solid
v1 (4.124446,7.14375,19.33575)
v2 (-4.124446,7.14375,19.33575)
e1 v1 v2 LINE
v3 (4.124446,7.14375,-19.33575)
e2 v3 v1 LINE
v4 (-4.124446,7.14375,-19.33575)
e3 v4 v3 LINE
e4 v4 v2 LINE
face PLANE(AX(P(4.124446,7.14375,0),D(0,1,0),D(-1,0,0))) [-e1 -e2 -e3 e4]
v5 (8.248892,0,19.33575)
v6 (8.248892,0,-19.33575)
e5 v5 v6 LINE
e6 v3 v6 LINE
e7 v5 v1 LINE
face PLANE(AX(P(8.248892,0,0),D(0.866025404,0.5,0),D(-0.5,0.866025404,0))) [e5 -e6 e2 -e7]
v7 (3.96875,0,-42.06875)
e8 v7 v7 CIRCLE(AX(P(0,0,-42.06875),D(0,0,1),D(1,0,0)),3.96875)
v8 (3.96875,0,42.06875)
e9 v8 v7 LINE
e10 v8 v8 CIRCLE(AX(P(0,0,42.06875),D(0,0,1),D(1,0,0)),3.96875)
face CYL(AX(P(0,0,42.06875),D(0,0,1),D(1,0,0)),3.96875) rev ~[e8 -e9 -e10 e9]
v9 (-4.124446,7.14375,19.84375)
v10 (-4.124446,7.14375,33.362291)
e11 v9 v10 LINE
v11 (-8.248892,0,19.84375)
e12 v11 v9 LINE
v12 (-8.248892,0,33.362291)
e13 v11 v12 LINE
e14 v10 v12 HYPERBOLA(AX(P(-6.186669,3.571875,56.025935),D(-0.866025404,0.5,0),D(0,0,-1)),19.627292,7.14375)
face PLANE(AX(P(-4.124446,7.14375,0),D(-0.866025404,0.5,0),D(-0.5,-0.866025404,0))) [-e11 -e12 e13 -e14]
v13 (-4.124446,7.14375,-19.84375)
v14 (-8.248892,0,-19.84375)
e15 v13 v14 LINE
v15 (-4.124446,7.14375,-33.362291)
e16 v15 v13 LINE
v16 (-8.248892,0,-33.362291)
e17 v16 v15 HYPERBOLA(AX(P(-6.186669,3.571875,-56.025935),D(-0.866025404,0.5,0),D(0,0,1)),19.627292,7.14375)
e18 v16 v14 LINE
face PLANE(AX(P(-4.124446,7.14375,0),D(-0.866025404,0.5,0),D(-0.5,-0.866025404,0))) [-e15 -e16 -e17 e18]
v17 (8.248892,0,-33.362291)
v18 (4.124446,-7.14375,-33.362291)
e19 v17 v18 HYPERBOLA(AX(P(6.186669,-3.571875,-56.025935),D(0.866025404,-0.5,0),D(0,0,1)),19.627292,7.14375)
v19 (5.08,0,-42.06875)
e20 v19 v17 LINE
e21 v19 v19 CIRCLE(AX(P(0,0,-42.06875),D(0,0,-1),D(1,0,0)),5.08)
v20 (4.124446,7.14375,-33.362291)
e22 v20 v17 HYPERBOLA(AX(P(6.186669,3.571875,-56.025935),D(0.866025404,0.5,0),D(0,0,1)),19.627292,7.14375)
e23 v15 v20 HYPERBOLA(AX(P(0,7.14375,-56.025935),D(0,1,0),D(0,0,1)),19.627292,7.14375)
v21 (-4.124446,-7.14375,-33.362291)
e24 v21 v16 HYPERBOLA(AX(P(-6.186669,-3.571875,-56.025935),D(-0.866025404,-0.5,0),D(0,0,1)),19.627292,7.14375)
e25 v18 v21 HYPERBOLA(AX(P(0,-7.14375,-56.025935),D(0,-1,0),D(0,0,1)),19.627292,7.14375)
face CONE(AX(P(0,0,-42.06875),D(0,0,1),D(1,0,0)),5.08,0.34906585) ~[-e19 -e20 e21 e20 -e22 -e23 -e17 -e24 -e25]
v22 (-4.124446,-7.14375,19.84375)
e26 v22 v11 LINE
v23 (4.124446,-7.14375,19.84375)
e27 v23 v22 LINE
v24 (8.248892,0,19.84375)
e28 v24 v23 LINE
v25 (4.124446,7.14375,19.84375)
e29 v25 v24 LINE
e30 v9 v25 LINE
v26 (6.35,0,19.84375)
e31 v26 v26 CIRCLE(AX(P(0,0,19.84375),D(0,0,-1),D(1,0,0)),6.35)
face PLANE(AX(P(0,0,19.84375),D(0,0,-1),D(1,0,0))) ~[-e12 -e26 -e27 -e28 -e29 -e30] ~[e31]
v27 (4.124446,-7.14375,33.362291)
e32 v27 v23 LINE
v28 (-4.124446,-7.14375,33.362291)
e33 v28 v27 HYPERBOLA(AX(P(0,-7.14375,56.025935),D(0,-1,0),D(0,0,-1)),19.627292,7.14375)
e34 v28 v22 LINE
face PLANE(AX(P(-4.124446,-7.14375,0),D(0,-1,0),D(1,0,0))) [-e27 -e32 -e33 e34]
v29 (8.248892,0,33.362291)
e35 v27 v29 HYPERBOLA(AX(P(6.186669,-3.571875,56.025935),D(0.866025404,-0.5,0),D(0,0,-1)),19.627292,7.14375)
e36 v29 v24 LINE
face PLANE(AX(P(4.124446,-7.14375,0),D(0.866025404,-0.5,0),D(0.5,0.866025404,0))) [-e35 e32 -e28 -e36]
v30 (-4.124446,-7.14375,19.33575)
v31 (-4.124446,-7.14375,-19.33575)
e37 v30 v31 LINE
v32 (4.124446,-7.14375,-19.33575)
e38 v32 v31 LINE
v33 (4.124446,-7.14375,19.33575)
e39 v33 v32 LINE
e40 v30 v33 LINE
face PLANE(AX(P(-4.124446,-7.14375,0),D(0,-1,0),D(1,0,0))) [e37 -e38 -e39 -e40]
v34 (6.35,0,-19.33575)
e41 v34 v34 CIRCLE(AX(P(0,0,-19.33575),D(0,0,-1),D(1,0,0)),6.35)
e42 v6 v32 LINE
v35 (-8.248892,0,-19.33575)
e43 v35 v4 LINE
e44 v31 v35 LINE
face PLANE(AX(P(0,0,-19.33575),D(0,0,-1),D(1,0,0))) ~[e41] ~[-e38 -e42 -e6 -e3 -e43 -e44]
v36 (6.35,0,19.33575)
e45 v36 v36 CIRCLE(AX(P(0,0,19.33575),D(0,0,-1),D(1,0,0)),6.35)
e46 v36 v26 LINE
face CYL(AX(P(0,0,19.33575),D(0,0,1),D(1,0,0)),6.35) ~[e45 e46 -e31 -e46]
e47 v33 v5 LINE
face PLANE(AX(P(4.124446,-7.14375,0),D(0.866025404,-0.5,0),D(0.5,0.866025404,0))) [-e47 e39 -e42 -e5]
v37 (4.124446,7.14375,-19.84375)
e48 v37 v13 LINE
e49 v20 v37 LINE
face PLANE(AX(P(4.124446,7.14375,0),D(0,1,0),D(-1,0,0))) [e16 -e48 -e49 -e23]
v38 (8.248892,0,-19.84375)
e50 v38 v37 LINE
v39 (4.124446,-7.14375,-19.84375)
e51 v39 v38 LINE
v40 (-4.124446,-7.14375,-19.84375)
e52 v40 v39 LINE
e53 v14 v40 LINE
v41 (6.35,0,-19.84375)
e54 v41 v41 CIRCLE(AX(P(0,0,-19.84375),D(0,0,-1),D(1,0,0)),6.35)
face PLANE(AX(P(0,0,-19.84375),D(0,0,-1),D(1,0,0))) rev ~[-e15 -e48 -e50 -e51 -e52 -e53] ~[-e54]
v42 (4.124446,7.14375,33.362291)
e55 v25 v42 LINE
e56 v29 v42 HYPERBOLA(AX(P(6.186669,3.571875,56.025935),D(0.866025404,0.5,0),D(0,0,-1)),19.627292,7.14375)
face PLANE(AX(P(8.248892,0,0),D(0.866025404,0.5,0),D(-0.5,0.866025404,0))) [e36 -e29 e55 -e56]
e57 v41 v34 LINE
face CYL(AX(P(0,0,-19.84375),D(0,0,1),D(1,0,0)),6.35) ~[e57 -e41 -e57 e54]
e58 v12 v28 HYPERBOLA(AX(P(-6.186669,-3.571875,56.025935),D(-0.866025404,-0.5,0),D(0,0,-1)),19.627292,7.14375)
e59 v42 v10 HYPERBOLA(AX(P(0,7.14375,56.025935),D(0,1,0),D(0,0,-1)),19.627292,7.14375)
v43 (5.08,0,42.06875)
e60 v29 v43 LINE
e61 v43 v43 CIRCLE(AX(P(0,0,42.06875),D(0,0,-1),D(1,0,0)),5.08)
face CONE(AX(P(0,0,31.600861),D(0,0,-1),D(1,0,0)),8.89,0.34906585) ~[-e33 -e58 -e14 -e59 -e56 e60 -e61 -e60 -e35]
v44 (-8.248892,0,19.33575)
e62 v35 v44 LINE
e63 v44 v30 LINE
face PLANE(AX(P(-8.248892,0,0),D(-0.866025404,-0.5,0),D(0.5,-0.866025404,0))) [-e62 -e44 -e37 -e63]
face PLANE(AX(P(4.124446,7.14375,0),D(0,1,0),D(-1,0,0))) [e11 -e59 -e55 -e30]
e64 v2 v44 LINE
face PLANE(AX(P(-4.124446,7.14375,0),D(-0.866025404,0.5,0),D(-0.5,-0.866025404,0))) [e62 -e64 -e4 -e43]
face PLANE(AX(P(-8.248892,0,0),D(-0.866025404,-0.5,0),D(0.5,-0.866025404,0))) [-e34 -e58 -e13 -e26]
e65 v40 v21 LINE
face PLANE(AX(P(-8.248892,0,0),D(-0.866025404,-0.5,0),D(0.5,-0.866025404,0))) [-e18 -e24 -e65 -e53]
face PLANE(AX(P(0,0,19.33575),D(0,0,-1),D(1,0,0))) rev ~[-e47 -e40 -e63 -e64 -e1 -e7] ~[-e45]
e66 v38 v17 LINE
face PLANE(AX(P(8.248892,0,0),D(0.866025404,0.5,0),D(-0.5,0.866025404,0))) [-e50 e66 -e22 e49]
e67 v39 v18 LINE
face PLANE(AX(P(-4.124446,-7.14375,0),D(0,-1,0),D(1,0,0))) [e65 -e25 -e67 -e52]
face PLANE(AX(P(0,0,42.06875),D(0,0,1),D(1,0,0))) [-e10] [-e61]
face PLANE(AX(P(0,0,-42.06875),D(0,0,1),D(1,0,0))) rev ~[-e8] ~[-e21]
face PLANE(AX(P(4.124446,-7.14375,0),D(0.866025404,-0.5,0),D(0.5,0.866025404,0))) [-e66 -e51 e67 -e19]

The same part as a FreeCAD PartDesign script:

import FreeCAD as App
import Part
import Sketcher

V = App.Vector
Q = App.Units.Quantity

doc = App.newDocument("Part")
body = doc.addObject("PartDesign::Body", "Body")

# Sketch on XY plane
sketch1 = body.newObject("Sketcher::SketchObject", "Sketch")
sketch1.AttachmentSupport = (doc.getObject("XY_Plane"), [""])
sketch1.MapMode = "FlatFace"
sketch1.addGeometry([
    Part.LineSegment(V(8.248892, 0, 0), V(4.124446, 7.14375, 0)),  # 0
    Part.LineSegment(V(4.124446, 7.14375, 0), V(-4.124446, 7.14375, 0)),  # 1
    Part.LineSegment(V(-4.124446, 7.14375, 0), V(-8.248892, 0, 0)),  # 2
    Part.LineSegment(V(-8.248892, 0, 0), V(-4.124446, -7.14375, 0)),  # 3
    Part.LineSegment(V(-4.124446, -7.14375, 0), V(4.124446, -7.14375, 0)),  # 4
    Part.LineSegment(V(4.124446, -7.14375, 0), V(8.248892, 0, 0)),  # 5
], False)
sketch1.addConstraint([
    Sketcher.Constraint("Coincident", 0, 2, 1, 1),
    Sketcher.Constraint("Coincident", 1, 2, 2, 1),
    Sketcher.Constraint("Coincident", 2, 2, 3, 1),
    Sketcher.Constraint("Coincident", 3, 2, 4, 1),
    Sketcher.Constraint("Coincident", 4, 2, 5, 1),
    Sketcher.Constraint("Coincident", 5, 2, 0, 1),
    Sketcher.Constraint("Horizontal", 1),
    Sketcher.Constraint("Horizontal", 4),
    Sketcher.Constraint("Symmetric", 0, 2, 3, 2, -1, 1),
    Sketcher.Constraint("Symmetric", 2, 2, 5, 2, -1, 1),
    Sketcher.Constraint("PointOnObject", 2, 2, -1),
    Sketcher.Constraint("Parallel", 2, 5),
    Sketcher.Constraint("Vertical", 1, 2, 3, 2),
    Sketcher.Constraint("Angle", 0, Q("120 deg")),
    Sketcher.Constraint("DistanceY", -1, 1, 0, 2, Q("0.28125 in")),
    Sketcher.Constraint("DistanceX", 1, 2, 1, 1, 8.248892),
])
pad1 = body.newObject("PartDesign::Pad", "Pad")
pad1.Profile = sketch1
pad1.Length = Q("3.3125 in")
pad1.Midplane = True

# Sketch on YZ plane
sketch2 = body.newObject("Sketcher::SketchObject", "Sketch001")
sketch2.AttachmentSupport = (doc.getObject("YZ_Plane"), [""])
sketch2.MapMode = "FlatFace"
sketch2.addGeometry([
    Part.LineSegment(V(6.35, -19.33575, 0), V(6.35, -19.84375, 0)),  # 0
    Part.LineSegment(V(6.35, -19.84375, 0), V(8.89, -19.84375, 0)),  # 1
    Part.LineSegment(V(8.89, -19.84375, 0), V(8.89, -31.600861, 0)),  # 2
    Part.LineSegment(V(8.89, -31.600861, 0), V(5.08, -42.06875, 0)),  # 3
    Part.LineSegment(V(5.08, -42.06875, 0), V(18.081978, -42.06875, 0)),  # 4
    Part.LineSegment(V(18.081978, -42.06875, 0), V(18.081978, 42.06875, 0)),  # 5
    Part.LineSegment(V(18.081978, 42.06875, 0), V(5.08, 42.06875, 0)),  # 6
    Part.LineSegment(V(5.08, 42.06875, 0), V(8.89, 31.600861, 0)),  # 7
    Part.LineSegment(V(8.89, 31.600861, 0), V(8.89, 19.84375, 0)),  # 8
    Part.LineSegment(V(8.89, 19.84375, 0), V(6.35, 19.84375, 0)),  # 9
    Part.LineSegment(V(6.35, 19.84375, 0), V(6.35, 19.33575, 0)),  # 10
    Part.LineSegment(V(6.35, 19.33575, 0), V(8.89, 19.33575, 0)),  # 11
    Part.LineSegment(V(8.89, 19.33575, 0), V(8.89, -19.33575, 0)),  # 12
    Part.LineSegment(V(8.89, -19.33575, 0), V(6.35, -19.33575, 0)),  # 13
], False)
sketch2.addConstraint([
    Sketcher.Constraint("Coincident", 0, 2, 1, 1),
    Sketcher.Constraint("Coincident", 1, 2, 2, 1),
    Sketcher.Constraint("Coincident", 2, 2, 3, 1),
    Sketcher.Constraint("Coincident", 3, 2, 4, 1),
    Sketcher.Constraint("Coincident", 4, 2, 5, 1),
    Sketcher.Constraint("Coincident", 5, 2, 6, 1),
    Sketcher.Constraint("Coincident", 6, 2, 7, 1),
    Sketcher.Constraint("Coincident", 7, 2, 8, 1),
    Sketcher.Constraint("Coincident", 8, 2, 9, 1),
    Sketcher.Constraint("Coincident", 9, 2, 10, 1),
    Sketcher.Constraint("Coincident", 10, 2, 11, 1),
    Sketcher.Constraint("Coincident", 11, 2, 12, 1),
    Sketcher.Constraint("Coincident", 12, 2, 13, 1),
    Sketcher.Constraint("Coincident", 13, 2, 0, 1),
    Sketcher.Constraint("Vertical", 0),
    Sketcher.Constraint("Horizontal", 1),
    Sketcher.Constraint("Vertical", 2),
    Sketcher.Constraint("Horizontal", 4),
    Sketcher.Constraint("Vertical", 5),
    Sketcher.Constraint("Horizontal", 6),
    Sketcher.Constraint("Vertical", 8),
    Sketcher.Constraint("Horizontal", 9),
    Sketcher.Constraint("Vertical", 10),
    Sketcher.Constraint("Horizontal", 11),
    Sketcher.Constraint("Vertical", 12),
    Sketcher.Constraint("Horizontal", 13),
    Sketcher.Constraint("Symmetric", 3, 2, 6, 2, -1),
    Sketcher.Constraint("Symmetric", 2, 2, 7, 2, -1),
    Sketcher.Constraint("Symmetric", 0, 2, 9, 2, -1),
    Sketcher.Constraint("Vertical", 8, 2, 11, 2),
    Sketcher.Constraint("Equal", 0, 10),
    Sketcher.Constraint("DistanceX", 1, 1, 1, 2, Q("0.1 in")),
    Sketcher.Constraint("Angle", 3, Q("-110 deg")),
    Sketcher.Constraint("DistanceY", 0, 2, 0, 1, Q("0.02 in")),
    Sketcher.Constraint("DistanceX", -1, 1, 3, 2, Q("0.2 in")),
    Sketcher.Constraint("DistanceY", 5, 1, 5, 2, Q("3.3125 in")),
    Sketcher.Constraint("DistanceX", -1, 1, 0, 2, Q("0.25 in")),
    Sketcher.Constraint("DistanceY", 12, 2, 12, 1, Q("1.5225 in")),
    Sketcher.Constraint("DistanceX", 4, 1, 4, 2, 13.001978),
])
groove = body.newObject("PartDesign::Groove", "Groove")
groove.Profile = sketch2
groove.ReferenceAxis = (sketch2, ["V_Axis"])
groove.Angle = 360

# Sketch on XY plane
sketch3 = body.newObject("Sketcher::SketchObject", "Sketch002")
sketch3.AttachmentSupport = (doc.getObject("XY_Plane"), [""])
sketch3.MapMode = "FlatFace"
sketch3.AttachmentOffset = App.Placement(V(0, 0, 1.65625 * 25.4), App.Rotation())
sketch3.addGeometry(Part.Circle(V(0, 0, 0), V(0, 0, 1), 3.96875), False)
sketch3.addConstraint([
    Sketcher.Constraint("Coincident", 0, 3, -1, 1),
    Sketcher.Constraint("Diameter", 0, Q("0.3125 in")),
])
pocket1 = body.newObject("PartDesign::Pocket", "Pocket")
pocket1.Profile = sketch3
pocket1.Type = "ThroughAll"

doc.recompute()
